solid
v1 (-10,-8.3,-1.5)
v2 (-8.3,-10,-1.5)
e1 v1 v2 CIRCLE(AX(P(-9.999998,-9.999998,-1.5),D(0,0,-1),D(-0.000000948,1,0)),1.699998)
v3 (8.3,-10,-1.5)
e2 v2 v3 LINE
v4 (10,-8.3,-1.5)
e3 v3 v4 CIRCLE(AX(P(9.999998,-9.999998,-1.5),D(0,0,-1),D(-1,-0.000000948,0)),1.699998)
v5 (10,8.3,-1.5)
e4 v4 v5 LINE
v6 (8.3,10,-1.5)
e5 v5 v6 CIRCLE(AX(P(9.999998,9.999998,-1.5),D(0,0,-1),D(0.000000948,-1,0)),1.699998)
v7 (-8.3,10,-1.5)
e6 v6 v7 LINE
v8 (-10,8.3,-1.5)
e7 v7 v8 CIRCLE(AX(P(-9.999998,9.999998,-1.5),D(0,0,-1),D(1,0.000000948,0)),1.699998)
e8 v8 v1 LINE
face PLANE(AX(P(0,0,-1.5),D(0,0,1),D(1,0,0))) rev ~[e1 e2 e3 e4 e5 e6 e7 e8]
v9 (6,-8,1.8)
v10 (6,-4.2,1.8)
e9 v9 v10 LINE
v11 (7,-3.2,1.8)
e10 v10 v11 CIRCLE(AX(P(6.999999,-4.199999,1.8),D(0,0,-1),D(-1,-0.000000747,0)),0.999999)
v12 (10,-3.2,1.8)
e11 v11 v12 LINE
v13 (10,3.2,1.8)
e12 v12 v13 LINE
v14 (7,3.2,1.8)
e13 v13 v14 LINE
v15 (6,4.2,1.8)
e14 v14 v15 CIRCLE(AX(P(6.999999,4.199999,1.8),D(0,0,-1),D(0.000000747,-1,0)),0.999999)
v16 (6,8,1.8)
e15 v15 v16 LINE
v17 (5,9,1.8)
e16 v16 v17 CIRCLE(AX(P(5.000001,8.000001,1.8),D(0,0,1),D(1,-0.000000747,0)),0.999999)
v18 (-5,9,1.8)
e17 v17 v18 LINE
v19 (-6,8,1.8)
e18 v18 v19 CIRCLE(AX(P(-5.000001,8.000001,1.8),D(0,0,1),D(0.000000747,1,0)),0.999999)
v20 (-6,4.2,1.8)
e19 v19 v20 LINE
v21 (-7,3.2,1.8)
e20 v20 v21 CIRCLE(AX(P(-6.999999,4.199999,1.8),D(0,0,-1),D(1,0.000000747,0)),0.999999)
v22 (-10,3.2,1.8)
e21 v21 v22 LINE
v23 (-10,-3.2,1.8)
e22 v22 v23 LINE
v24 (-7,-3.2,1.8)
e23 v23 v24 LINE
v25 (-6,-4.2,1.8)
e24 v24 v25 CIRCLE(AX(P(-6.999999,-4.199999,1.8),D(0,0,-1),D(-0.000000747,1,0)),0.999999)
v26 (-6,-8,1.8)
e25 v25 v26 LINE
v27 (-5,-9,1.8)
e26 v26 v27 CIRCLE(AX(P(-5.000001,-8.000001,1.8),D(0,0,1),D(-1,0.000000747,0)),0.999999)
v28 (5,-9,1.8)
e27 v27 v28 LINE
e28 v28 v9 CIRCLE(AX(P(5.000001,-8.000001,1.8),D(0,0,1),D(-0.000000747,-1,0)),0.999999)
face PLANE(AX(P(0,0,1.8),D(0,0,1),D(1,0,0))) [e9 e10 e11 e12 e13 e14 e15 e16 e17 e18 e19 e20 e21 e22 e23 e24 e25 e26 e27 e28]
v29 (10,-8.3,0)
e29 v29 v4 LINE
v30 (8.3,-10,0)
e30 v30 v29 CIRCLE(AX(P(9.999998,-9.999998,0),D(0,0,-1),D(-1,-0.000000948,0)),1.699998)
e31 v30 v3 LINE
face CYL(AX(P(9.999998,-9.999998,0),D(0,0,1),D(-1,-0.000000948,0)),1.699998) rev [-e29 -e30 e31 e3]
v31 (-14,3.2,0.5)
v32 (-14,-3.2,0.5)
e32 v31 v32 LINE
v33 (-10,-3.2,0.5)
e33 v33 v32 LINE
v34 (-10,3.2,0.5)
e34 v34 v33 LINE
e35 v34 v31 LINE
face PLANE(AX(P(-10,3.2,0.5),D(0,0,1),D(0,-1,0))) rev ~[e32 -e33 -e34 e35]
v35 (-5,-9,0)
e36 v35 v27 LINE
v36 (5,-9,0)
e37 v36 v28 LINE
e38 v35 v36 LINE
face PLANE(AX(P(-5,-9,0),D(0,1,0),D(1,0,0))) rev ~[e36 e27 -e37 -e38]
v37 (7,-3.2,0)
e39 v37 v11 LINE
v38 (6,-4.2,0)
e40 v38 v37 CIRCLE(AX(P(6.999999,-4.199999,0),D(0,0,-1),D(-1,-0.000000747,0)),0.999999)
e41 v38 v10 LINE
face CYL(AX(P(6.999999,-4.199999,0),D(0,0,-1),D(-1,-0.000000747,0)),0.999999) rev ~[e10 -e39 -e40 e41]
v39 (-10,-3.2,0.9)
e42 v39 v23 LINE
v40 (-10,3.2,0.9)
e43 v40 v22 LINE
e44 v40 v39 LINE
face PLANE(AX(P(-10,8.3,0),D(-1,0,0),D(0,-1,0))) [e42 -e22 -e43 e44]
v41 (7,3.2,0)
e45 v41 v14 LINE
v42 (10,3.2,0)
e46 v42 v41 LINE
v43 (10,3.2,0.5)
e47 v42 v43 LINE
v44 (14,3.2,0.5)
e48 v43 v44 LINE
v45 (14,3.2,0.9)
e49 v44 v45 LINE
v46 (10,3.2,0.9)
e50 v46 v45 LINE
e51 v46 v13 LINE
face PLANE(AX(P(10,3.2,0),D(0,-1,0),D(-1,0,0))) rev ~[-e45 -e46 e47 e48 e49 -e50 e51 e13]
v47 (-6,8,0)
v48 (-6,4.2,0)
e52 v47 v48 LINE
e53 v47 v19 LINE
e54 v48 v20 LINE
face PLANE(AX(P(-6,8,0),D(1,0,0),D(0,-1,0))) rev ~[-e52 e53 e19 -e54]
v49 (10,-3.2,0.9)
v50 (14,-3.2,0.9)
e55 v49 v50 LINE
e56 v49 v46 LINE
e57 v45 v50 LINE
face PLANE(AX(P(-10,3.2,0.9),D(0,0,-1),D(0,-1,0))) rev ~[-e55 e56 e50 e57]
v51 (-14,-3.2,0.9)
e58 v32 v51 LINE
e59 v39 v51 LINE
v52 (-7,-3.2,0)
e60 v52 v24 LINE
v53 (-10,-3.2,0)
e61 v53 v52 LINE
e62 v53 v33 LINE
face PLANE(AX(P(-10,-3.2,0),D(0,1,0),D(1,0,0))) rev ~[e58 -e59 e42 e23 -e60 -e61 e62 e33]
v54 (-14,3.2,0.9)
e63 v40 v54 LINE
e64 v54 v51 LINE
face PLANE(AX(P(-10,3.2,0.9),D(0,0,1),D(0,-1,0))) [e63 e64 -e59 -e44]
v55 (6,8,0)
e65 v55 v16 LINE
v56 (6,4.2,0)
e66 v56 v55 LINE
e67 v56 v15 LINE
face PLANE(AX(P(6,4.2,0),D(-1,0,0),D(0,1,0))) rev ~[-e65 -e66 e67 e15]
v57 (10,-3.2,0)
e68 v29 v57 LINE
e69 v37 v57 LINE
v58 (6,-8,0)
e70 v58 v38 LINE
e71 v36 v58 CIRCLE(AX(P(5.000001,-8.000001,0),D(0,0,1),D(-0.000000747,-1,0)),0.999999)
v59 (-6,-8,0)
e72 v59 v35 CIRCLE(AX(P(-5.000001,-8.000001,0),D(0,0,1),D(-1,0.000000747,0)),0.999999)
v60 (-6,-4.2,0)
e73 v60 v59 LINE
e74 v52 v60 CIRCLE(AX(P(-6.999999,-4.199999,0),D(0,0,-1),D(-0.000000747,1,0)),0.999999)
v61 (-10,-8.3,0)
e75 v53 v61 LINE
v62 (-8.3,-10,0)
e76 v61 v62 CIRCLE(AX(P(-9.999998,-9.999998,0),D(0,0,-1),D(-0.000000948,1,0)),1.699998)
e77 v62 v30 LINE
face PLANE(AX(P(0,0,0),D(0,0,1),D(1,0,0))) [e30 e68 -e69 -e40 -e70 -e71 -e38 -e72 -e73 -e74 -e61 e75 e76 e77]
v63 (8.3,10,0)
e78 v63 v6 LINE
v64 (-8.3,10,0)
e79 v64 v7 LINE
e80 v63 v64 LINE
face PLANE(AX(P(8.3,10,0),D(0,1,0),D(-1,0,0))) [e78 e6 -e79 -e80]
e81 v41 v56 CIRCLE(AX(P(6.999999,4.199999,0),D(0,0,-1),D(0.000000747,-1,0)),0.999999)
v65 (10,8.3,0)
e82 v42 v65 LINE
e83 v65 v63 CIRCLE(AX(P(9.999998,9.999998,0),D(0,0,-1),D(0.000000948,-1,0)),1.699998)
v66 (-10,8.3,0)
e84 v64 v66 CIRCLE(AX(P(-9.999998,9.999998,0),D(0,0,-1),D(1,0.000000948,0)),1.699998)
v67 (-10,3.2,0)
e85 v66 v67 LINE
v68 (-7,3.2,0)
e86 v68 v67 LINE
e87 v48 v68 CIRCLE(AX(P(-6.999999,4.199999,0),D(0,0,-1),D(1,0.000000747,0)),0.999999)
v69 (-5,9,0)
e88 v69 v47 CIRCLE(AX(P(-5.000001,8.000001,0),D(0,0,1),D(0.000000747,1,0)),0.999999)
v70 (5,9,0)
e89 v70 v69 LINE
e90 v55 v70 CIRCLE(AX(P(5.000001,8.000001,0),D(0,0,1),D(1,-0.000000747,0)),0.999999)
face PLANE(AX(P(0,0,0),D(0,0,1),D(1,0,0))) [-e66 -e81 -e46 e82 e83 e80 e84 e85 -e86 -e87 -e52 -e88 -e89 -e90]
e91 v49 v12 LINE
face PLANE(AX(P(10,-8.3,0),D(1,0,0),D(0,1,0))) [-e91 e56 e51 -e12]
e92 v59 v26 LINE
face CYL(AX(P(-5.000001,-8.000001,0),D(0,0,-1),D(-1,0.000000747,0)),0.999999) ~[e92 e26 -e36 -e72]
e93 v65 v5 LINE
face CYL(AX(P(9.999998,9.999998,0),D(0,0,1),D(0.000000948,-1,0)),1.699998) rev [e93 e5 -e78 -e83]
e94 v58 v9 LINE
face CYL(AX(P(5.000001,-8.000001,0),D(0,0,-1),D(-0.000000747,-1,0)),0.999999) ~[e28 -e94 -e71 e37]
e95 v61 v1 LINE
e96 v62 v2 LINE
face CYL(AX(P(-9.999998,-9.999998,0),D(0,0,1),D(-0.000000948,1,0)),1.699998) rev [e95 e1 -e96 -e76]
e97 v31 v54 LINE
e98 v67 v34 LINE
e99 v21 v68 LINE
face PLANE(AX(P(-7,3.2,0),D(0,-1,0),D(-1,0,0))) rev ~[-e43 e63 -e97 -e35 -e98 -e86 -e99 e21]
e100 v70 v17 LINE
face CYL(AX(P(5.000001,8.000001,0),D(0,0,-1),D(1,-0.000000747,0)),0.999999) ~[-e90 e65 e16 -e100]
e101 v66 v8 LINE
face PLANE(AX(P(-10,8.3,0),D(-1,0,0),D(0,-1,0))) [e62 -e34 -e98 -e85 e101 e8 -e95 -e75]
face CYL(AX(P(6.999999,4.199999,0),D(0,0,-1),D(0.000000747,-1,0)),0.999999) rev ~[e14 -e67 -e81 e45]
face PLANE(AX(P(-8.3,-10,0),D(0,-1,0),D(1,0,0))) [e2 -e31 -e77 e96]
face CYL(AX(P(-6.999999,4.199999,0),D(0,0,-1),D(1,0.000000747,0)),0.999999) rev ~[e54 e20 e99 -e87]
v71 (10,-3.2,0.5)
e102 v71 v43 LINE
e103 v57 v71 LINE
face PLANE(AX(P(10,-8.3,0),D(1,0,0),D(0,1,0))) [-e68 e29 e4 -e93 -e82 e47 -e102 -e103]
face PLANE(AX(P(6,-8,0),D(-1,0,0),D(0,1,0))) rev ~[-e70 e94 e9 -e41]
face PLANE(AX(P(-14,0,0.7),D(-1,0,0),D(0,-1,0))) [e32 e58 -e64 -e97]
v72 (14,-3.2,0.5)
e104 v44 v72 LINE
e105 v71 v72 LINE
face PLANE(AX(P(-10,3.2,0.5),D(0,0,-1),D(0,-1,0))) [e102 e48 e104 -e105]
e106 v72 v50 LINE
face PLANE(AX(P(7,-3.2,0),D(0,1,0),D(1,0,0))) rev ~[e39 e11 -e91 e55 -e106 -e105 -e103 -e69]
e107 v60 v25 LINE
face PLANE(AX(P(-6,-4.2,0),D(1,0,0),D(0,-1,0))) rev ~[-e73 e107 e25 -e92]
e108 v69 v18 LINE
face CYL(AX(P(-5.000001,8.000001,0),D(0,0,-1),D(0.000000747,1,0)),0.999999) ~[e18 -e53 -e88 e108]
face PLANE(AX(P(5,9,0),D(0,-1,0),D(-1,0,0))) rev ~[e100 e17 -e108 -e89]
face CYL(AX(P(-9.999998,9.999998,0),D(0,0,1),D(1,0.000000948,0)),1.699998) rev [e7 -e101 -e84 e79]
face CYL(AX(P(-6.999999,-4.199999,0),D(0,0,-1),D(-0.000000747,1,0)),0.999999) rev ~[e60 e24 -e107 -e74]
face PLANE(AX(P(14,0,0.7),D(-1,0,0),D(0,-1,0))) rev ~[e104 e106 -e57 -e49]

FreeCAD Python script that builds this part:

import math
import FreeCAD as App
import Part
import Sketcher

V = App.Vector

doc = App.newDocument("Part")
params = doc.addObject("Spreadsheet::Sheet", "Params")
for row, (alias, value) in enumerate([
    ("sketch1_radius", "1.699998 mm"),
    ("sketch1_width", "16.6 mm"),
    ("pad1_length", "1.5 mm"),
    ("sketch2_radius", "0.999999 mm"),
    ("sketch2_width", "10 mm"),
    ("sketch2_width2", "3 mm"),
    ("sketch2_height", "3.8 mm"),
    ("sketch2_height2", "6.4 mm"),
    ("pad2_length", "1.8 mm"),
    ("sketch3_width", "6.4 mm"),
    ("sketch3_height", "0.4 mm"),
    ("pad3_length", "4 mm"),
    ("sketch4_width", "6.4 mm"),
    ("sketch4_height", "0.4 mm"),
    ("pad4_length", "24 mm"),
], start=1):
    params.set(f"A{row}", alias)
    params.set(f"B{row}", "=" + value)
    params.setAlias(f"B{row}", alias)

body = doc.addObject("PartDesign::Body", "Body")

sketch1 = doc.addObject("Sketcher::SketchObject", "Sketch")
body.addObject(sketch1)
sketch1.AttachmentSupport = (doc.XY_Plane, [""])
sketch1.MapMode = "FlatFace"
sketch1.addGeometry([
    Part.LineSegment(V(-8.3, -10, 0), V(8.3, -10, 0)),
    Part.ArcOfCircle(Part.Circle(V(10, -10, 0), V(0, 0, 1), 1.7), math.radians(90), math.radians(180)),
    Part.LineSegment(V(10, -8.3, 0), V(10, 8.3, 0)),
    Part.ArcOfCircle(Part.Circle(V(10, 10, 0), V(0, 0, 1), 1.7), math.radians(180), math.radians(270)),
    Part.LineSegment(V(8.3, 10, 0), V(-8.3, 10, 0)),
    Part.ArcOfCircle(Part.Circle(V(-10, 10, 0), V(0, 0, 1), 1.7), math.radians(-90), math.radians(0)),
    Part.LineSegment(V(-10, 8.3, 0), V(-10, -8.3, 0)),
    Part.ArcOfCircle(Part.Circle(V(-10, -10, 0), V(0, 0, 1), 1.7), math.radians(0), math.radians(90)),
], False)
sketch1.addConstraint([
    Sketcher.Constraint("Coincident", 0, 2, 1, 2),
    Sketcher.Constraint("Coincident", 1, 1, 2, 1),
    Sketcher.Constraint("Coincident", 2, 2, 3, 2),
    Sketcher.Constraint("Coincident", 3, 1, 4, 1),
    Sketcher.Constraint("Coincident", 4, 2, 5, 2),
    Sketcher.Constraint("Coincident", 5, 1, 6, 1),
    Sketcher.Constraint("Coincident", 6, 2, 7, 2),
    Sketcher.Constraint("Coincident", 7, 1, 0, 1),
    Sketcher.Constraint("Horizontal", 0),
    Sketcher.Constraint("Vertical", 2),
    Sketcher.Constraint("Horizontal", 4),
    Sketcher.Constraint("Vertical", 6),
    Sketcher.Constraint("Equal", 1, 3),
    Sketcher.Constraint("Equal", 3, 5),
    Sketcher.Constraint("Equal", 5, 7),
    Sketcher.Constraint("Symmetric", 1, 3, 5, 3, -1, 1),
    Sketcher.Constraint("Symmetric", 3, 3, 7, 3, -1, 1),
    Sketcher.Constraint("Symmetric", 3, 3, 5, 3, -2),
    Sketcher.Constraint("Horizontal", 7, 3, 0, 2),
    Sketcher.Constraint("Horizontal", 5, 3, 3, 1),
    Sketcher.Constraint("Vertical", 3, 3, 1, 1),
    Sketcher.Constraint("Vertical", 7, 3, 5, 1),
    Sketcher.Constraint("Equal", 4, 2),
    Sketcher.Constraint("Radius", 1, 1.699998),
    Sketcher.Constraint("DistanceX", 0, 1, 0, 2, 16.6),
])
sketch1.setExpression("Constraints[23]", "Params.sketch1_radius")
sketch1.setExpression("Constraints[24]", "Params.sketch1_width")
pad1 = doc.addObject("PartDesign::Pad", "Pad")
body.addObject(pad1)
pad1.Profile = sketch1
pad1.setExpression("Length", "Params.pad1_length")
pad1.Reversed = True

sketch2 = doc.addObject("Sketcher::SketchObject", "Sketch001")
body.addObject(sketch2)
sketch2.AttachmentSupport = (doc.XY_Plane, [""])
sketch2.MapMode = "FlatFace"
sketch2.addGeometry([
    Part.LineSegment(V(-5, -9, 0), V(5, -9, 0)),
    Part.ArcOfCircle(Part.Circle(V(5, -8, 0), V(0, 0, 1), 1), math.radians(-90), math.radians(0)),
    Part.LineSegment(V(6, -8, 0), V(6, -4.2, 0)),
    Part.ArcOfCircle(Part.Circle(V(7, -4.2, 0), V(0, 0, 1), 1), math.radians(90), math.radians(180)),
    Part.LineSegment(V(7, -3.2, 0), V(10, -3.2, 0)),
    Part.LineSegment(V(10, -3.2, 0), V(10, 3.2, 0)),
    Part.LineSegment(V(10, 3.2, 0), V(7, 3.2, 0)),
    Part.ArcOfCircle(Part.Circle(V(7, 4.2, 0), V(0, 0, 1), 1), math.radians(180), math.radians(270)),
    Part.LineSegment(V(6, 4.2, 0), V(6, 8, 0)),
    Part.ArcOfCircle(Part.Circle(V(5, 8, 0), V(0, 0, 1), 1), math.radians(0), math.radians(90)),
    Part.LineSegment(V(5, 9, 0), V(-5, 9, 0)),
    Part.ArcOfCircle(Part.Circle(V(-5, 8, 0), V(0, 0, 1), 1), math.radians(90), math.radians(180)),
    Part.LineSegment(V(-6, 8, 0), V(-6, 4.2, 0)),
    Part.ArcOfCircle(Part.Circle(V(-7, 4.2, 0), V(0, 0, 1), 1), math.radians(-90), math.radians(0)),
    Part.LineSegment(V(-7, 3.2, 0), V(-10, 3.2, 0)),
    Part.LineSegment(V(-10, 3.2, 0), V(-10, -3.2, 0)),
    Part.LineSegment(V(-10, -3.2, 0), V(-7, -3.2, 0)),
    Part.ArcOfCircle(Part.Circle(V(-7, -4.2, 0), V(0, 0, 1), 1), math.radians(0), math.radians(90)),
    Part.LineSegment(V(-6, -4.2, 0), V(-6, -8, 0)),
    Part.ArcOfCircle(Part.Circle(V(-5, -8, 0), V(0, 0, 1), 1), math.radians(180), math.radians(270)),
], False)
sketch2.addConstraint([
    Sketcher.Constraint("Tangent", 0, 2, 1, 1),
    Sketcher.Constraint("Tangent", 1, 2, 2, 1),
    Sketcher.Constraint("Tangent", 2, 2, 3, 2),
    Sketcher.Constraint("Tangent", 3, 1, 4, 1),
    Sketcher.Constraint("Coincident", 4, 2, 5, 1),
    Sketcher.Constraint("Coincident", 5, 2, 6, 1),
    Sketcher.Constraint("Tangent", 6, 2, 7, 2),
    Sketcher.Constraint("Tangent", 7, 1, 8, 1),
    Sketcher.Constraint("Tangent", 8, 2, 9, 1),
    Sketcher.Constraint("Tangent", 9, 2, 10, 1),
    Sketcher.Constraint("Tangent", 10, 2, 11, 1),
    Sketcher.Constraint("Tangent", 11, 2, 12, 1),
    Sketcher.Constraint("Tangent", 12, 2, 13, 2),
    Sketcher.Constraint("Tangent", 13, 1, 14, 1),
    Sketcher.Constraint("Coincident", 14, 2, 15, 1),
    Sketcher.Constraint("Coincident", 15, 2, 16, 1),
    Sketcher.Constraint("Tangent", 16, 2, 17, 2),
    Sketcher.Constraint("Tangent", 17, 1, 18, 1),
    Sketcher.Constraint("Tangent", 18, 2, 19, 1),
    Sketcher.Constraint("Tangent", 19, 2, 0, 1),
    Sketcher.Constraint("Horizontal", 0),
    Sketcher.Constraint("Vertical", 2),
    Sketcher.Constraint("Horizontal", 4),
    Sketcher.Constraint("Vertical", 5),
    Sketcher.Constraint("Horizontal", 6),
    Sketcher.Constraint("Vertical", 8),
    Sketcher.Constraint("Horizontal", 10),
    Sketcher.Constraint("Vertical", 12),
    Sketcher.Constraint("Horizontal", 14),
    Sketcher.Constraint("Vertical", 15),
    Sketcher.Constraint("Horizontal", 16),
    Sketcher.Constraint("Vertical", 18),
    Sketcher.Constraint("Equal", 1, 3),
    Sketcher.Constraint("Equal", 3, 7),
    Sketcher.Constraint("Equal", 7, 9),
    Sketcher.Constraint("Equal", 9, 11),
    Sketcher.Constraint("Equal", 11, 13),
    Sketcher.Constraint("Equal", 13, 17),
    Sketcher.Constraint("Equal", 17, 19),
    Sketcher.Constraint("Symmetric", 1, 3, 11, 3, -1, 1),
    Sketcher.Constraint("Symmetric", 7, 3, 17, 3, -1, 1),
    Sketcher.Constraint("Symmetric", 4, 2, 14, 2, -1, 1),
    Sketcher.Constraint("Symmetric", 7, 3, 13, 3, -2),
    Sketcher.Constraint("Radius", 1, 0.999999),
    Sketcher.Constraint("DistanceX", 0, 1, 0, 2, 10.0),
    Sketcher.Constraint("DistanceX", 4, 1, 4, 2, 3.0),
    Sketcher.Constraint("DistanceY", 2, 1, 2, 2, 3.8),
    Sketcher.Constraint("DistanceY", 5, 1, 5, 2, 6.4),
])
sketch2.setExpression("Constraints[43]", "Params.sketch2_radius")
sketch2.setExpression("Constraints[44]", "Params.sketch2_width")
sketch2.setExpression("Constraints[45]", "Params.sketch2_width2")
sketch2.setExpression("Constraints[46]", "Params.sketch2_height")
sketch2.setExpression("Constraints[47]", "Params.sketch2_height2")
pad2 = doc.addObject("PartDesign::Pad", "Pad001")
body.addObject(pad2)
pad2.Profile = sketch2
pad2.setExpression("Length", "Params.pad2_length")

sketch3 = doc.addObject("Sketcher::SketchObject", "Sketch002")
body.addObject(sketch3)
sketch3.AttachmentSupport = (doc.YZ_Plane, [""])
sketch3.MapMode = "FlatFace"
sketch3.AttachmentOffset = App.Placement(V(0, 0, -10), App.Rotation())
sketch3.addGeometry([
    Part.LineSegment(V(3.2, 0.9, 0), V(3.2, 0.5, 0)),
    Part.LineSegment(V(3.2, 0.5, 0), V(-3.2, 0.5, 0)),
    Part.LineSegment(V(-3.2, 0.5, 0), V(-3.2, 0.9, 0)),
    Part.LineSegment(V(-3.2, 0.9, 0), V(3.2, 0.9, 0)),
], False)
sketch3.addConstraint([
    Sketcher.Constraint("Coincident", 0, 2, 1, 1),
    Sketcher.Constraint("Coincident", 1, 2, 2, 1),
    Sketcher.Constraint("Coincident", 2, 2, 3, 1),
    Sketcher.Constraint("Coincident", 3, 2, 0, 1),
    Sketcher.Constraint("Vertical", 0),
    Sketcher.Constraint("Horizontal", 1),
    Sketcher.Constraint("Vertical", 2),
    Sketcher.Constraint("Horizontal", 3),
    Sketcher.Constraint("DistanceX", 1, 2, 1, 1, 6.4),
    Sketcher.Constraint("DistanceY", 0, 2, 0, 1, 0.4),
    Sketcher.Constraint("DistanceX", -1, 1, 0, 2, 3.2),
    Sketcher.Constraint("DistanceY", -1, 1, 0, 2, 0.5),
])
sketch3.setExpression("Constraints[8]", "Params.sketch3_width")
sketch3.setExpression("Constraints[9]", "Params.sketch3_height")
pad3 = doc.addObject("PartDesign::Pad", "Pad002")
body.addObject(pad3)
pad3.Profile = sketch3
pad3.setExpression("Length", "Params.pad3_length")
pad3.Reversed = True

sketch4 = doc.addObject("Sketcher::SketchObject", "Sketch003")
body.addObject(sketch4)
sketch4.AttachmentSupport = (doc.YZ_Plane, [""])
sketch4.MapMode = "FlatFace"
sketch4.AttachmentOffset = App.Placement(V(0, 0, -10), App.Rotation())
sketch4.addGeometry([
    Part.LineSegment(V(3.2, 0.9, 0), V(3.2, 0.5, 0)),
    Part.LineSegment(V(3.2, 0.5, 0), V(-3.2, 0.5, 0)),
    Part.LineSegment(V(-3.2, 0.5, 0), V(-3.2, 0.9, 0)),
    Part.LineSegment(V(-3.2, 0.9, 0), V(3.2, 0.9, 0)),
], False)
sketch4.addConstraint([
    Sketcher.Constraint("Coincident", 0, 2, 1, 1),
    Sketcher.Constraint("Coincident", 1, 2, 2, 1),
    Sketcher.Constraint("Coincident", 2, 2, 3, 1),
    Sketcher.Constraint("Coincident", 3, 2, 0, 1),
    Sketcher.Constraint("Vertical", 0),
    Sketcher.Constraint("Horizontal", 1),
    Sketcher.Constraint("Vertical", 2),
    Sketcher.Constraint("Horizontal", 3),
    Sketcher.Constraint("DistanceX", 1, 2, 1, 1, 6.4),
    Sketcher.Constraint("DistanceY", 0, 2, 0, 1, 0.4),
    Sketcher.Constraint("DistanceX", -1, 1, 0, 2, 3.2),
    Sketcher.Constraint("DistanceY", -1, 1, 0, 2, 0.5),
])
sketch4.setExpression("Constraints[8]", "Params.sketch4_width")
sketch4.setExpression("Constraints[9]", "Params.sketch4_height")
pad4 = doc.addObject("PartDesign::Pad", "Pad003")
body.addObject(pad4)
pad4.Profile = sketch4
pad4.setExpression("Length", "Params.pad4_length")

doc.recompute()
